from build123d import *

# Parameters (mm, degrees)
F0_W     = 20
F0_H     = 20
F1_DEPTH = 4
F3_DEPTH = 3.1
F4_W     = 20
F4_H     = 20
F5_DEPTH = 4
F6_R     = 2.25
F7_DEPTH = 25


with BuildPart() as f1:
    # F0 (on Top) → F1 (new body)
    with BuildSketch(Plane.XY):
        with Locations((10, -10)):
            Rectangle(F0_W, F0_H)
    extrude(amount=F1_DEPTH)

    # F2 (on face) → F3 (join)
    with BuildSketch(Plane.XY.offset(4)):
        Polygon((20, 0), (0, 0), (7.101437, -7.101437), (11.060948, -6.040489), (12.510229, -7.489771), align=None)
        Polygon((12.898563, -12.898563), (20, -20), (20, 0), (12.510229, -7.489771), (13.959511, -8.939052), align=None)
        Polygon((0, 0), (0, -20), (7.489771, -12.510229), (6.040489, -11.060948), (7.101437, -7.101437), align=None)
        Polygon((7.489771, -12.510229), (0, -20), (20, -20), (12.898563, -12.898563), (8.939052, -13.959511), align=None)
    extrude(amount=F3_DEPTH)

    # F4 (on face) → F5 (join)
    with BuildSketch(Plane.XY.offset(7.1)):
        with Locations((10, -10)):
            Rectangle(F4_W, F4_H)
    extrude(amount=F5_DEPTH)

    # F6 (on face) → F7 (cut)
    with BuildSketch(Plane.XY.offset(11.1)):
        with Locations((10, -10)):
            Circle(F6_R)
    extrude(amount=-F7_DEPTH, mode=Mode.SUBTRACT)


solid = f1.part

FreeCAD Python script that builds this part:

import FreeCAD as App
import Part
import Sketcher
Q = App.Units.Quantity

doc = App.newDocument("Part")
params = doc.addObject("Spreadsheet::Sheet", "Params")
for row, (alias, value) in enumerate([
    ("sketch1_width", "20 mm"),
    ("pad1_length", "4 mm"),
    ("sketch2_width", "20 mm"),
    ("pad2_length", "3.1 mm"),
    ("sketch3_width", "20 mm"),
    ("pad3_length", "4 mm"),
    ("sketch4_diameter", "4.5 mm"),
    ("pocket1_length", "25 mm"),
], start=1):
    params.set(f"A{row}", alias)
    params.set(f"B{row}", "=" + value)
    params.setAlias(f"B{row}", alias)

body = doc.addObject("PartDesign::Body", "Body")

# Sketch on XY plane
sketch1 = body.newObject("Sketcher::SketchObject", "Sketch")
sketch1.AttachmentSupport = (doc.getObject("XY_Plane"), [""])
sketch1.MapMode = "FlatFace"
sketch1.addGeometry([
    Part.LineSegment(App.Vector(0, 0, 0), App.Vector(0, -20, 0)),
    Part.LineSegment(App.Vector(0, -20, 0), App.Vector(20, -20, 0)),
    Part.LineSegment(App.Vector(20, -20, 0), App.Vector(20, 0, 0)),
    Part.LineSegment(App.Vector(20, 0, 0), App.Vector(0, 0, 0)),
], False)
sketch1.addConstraint([
    Sketcher.Constraint("Coincident", 0, 2, 1, 1),
    Sketcher.Constraint("Coincident", 1, 2, 2, 1),
    Sketcher.Constraint("Coincident", 2, 2, 3, 1),
    Sketcher.Constraint("Coincident", 3, 2, 0, 1),
    Sketcher.Constraint("Vertical", 0),
    Sketcher.Constraint("Horizontal", 1),
    Sketcher.Constraint("Vertical", 2),
    Sketcher.Constraint("Horizontal", 3),
    Sketcher.Constraint("Coincident", 3, 2, -1, 1),
    Sketcher.Constraint("Equal", 3, 0),
    Sketcher.Constraint("DistanceX", 1, 1, 1, 2, 20.0),
])
sketch1.setExpression("Constraints[10]", "Params.sketch1_width")
pad1 = body.newObject("PartDesign::Pad", "Pad")
pad1.Profile = sketch1
pad1.setExpression("Length", "Params.pad1_length")

# Sketch on XY plane
sketch2 = body.newObject("Sketcher::SketchObject", "Sketch001")
sketch2.AttachmentSupport = (doc.getObject("XY_Plane"), [""])
sketch2.MapMode = "FlatFace"
sketch2.AttachmentOffset = App.Placement(App.Vector(0, 0, 4), App.Rotation())
sketch2.addGeometry([
    Part.LineSegment(App.Vector(20, 0, 0), App.Vector(0, 0, 0)),  # 0
    Part.LineSegment(App.Vector(0, 0, 0), App.Vector(0, -20, 0)),  # 1
    Part.LineSegment(App.Vector(0, -20, 0), App.Vector(20, -20, 0)),  # 2
    Part.LineSegment(App.Vector(20, -20, 0), App.Vector(20, 0, 0)),  # 3
    Part.LineSegment(App.Vector(7.5, -12.5, 0), App.Vector(6, -11.1, 0)),  # 4
    Part.LineSegment(App.Vector(6, -11.1, 0), App.Vector(7.1, -7.1, 0)),  # 5
    Part.LineSegment(App.Vector(7.1, -7.1, 0), App.Vector(11.1, -6, 0)),  # 6
    Part.LineSegment(App.Vector(11.1, -6, 0), App.Vector(12.5, -7.5, 0)),  # 7
    Part.LineSegment(App.Vector(12.5, -7.5, 0), App.Vector(14, -8.9, 0)),  # 8
    Part.LineSegment(App.Vector(14, -8.9, 0), App.Vector(12.9, -12.9, 0)),  # 9
    Part.LineSegment(App.Vector(12.9, -12.9, 0), App.Vector(8.9, -14, 0)),  # 10
    Part.LineSegment(App.Vector(8.9, -14, 0), App.Vector(7.5, -12.5, 0)),  # 11
], False)
sketch2.addConstraint([
    Sketcher.Constraint("Coincident", 0, 2, 1, 1),
    Sketcher.Constraint("Coincident", 1, 2, 2, 1),
    Sketcher.Constraint("Coincident", 2, 2, 3, 1),
    Sketcher.Constraint("Coincident", 3, 2, 0, 1),
    Sketcher.Constraint("Coincident", 4, 2, 5, 1),
    Sketcher.Constraint("Coincident", 5, 2, 6, 1),
    Sketcher.Constraint("Coincident", 6, 2, 7, 1),
    Sketcher.Constraint("Coincident", 7, 2, 8, 1),
    Sketcher.Constraint("Coincident", 8, 2, 9, 1),
    Sketcher.Constraint("Coincident", 9, 2, 10, 1),
    Sketcher.Constraint("Coincident", 10, 2, 11, 1),
    Sketcher.Constraint("Coincident", 11, 2, 4, 1),
    Sketcher.Constraint("Horizontal", 0),
    Sketcher.Constraint("Vertical", 1),
    Sketcher.Constraint("Horizontal", 2),
    Sketcher.Constraint("Vertical", 3),
    Sketcher.Constraint("Coincident", 0, 2, -1, 1),
    Sketcher.Constraint("Parallel", 4, 7),
    Sketcher.Constraint("Parallel", 7, 8),
    Sketcher.Constraint("Parallel", 5, 9),
    Sketcher.Constraint("Parallel", 6, 10),
    Sketcher.Constraint("Parallel", 8, 11),
    Sketcher.Constraint("Equal", 2, 1),
    Sketcher.Constraint("Equal", 5, 6),
    Sketcher.Constraint("Equal", 4, 7),
    Sketcher.Constraint("Equal", 7, 8),
    Sketcher.Constraint("Equal", 6, 9),
    Sketcher.Constraint("DistanceX", 0, 2, 0, 1, 20.0),
    Sketcher.Constraint("Angle", 4, Q("135.00002 deg")),
    Sketcher.Constraint("Angle", 5, Q("74.999997 deg")),
    Sketcher.Constraint("Angle", 6, Q("15.000003 deg")),
    Sketcher.Constraint("DistanceX", -1, 1, 4, 2, 6.040489),
    Sketcher.Constraint("DistanceY", 6, 2, -1, 1, 6.040489),
    Sketcher.Constraint("DistanceX", -1, 1, 7, 2, 12.510229),
    Sketcher.Constraint("DistanceY", 7, 2, -1, 1, 7.489771),
])
sketch2.setExpression("Constraints[27]", "Params.sketch2_width")
pad2 = body.newObject("PartDesign::Pad", "Pad001")
pad2.Profile = sketch2
pad2.setExpression("Length", "Params.pad2_length")

# Sketch on XY plane
sketch3 = body.newObject("Sketcher::SketchObject", "Sketch002")
sketch3.AttachmentSupport = (doc.getObject("XY_Plane"), [""])
sketch3.MapMode = "FlatFace"
sketch3.AttachmentOffset = App.Placement(App.Vector(0, 0, 7.1), App.Rotation())
sketch3.addGeometry([
    Part.LineSegment(App.Vector(0, 0, 0), App.Vector(0, -20, 0)),
    Part.LineSegment(App.Vector(0, -20, 0), App.Vector(20, -20, 0)),
    Part.LineSegment(App.Vector(20, -20, 0), App.Vector(20, 0, 0)),
    Part.LineSegment(App.Vector(20, 0, 0), App.Vector(0, 0, 0)),
], False)
sketch3.addConstraint([
    Sketcher.Constraint("Coincident", 0, 2, 1, 1),
    Sketcher.Constraint("Coincident", 1, 2, 2, 1),
    Sketcher.Constraint("Coincident", 2, 2, 3, 1),
    Sketcher.Constraint("Coincident", 3, 2, 0, 1),
    Sketcher.Constraint("Vertical", 0),
    Sketcher.Constraint("Horizontal", 1),
    Sketcher.Constraint("Vertical", 2),
    Sketcher.Constraint("Horizontal", 3),
    Sketcher.Constraint("Coincident", 3, 2, -1, 1),
    Sketcher.Constraint("Equal", 3, 0),
    Sketcher.Constraint("DistanceX", 1, 1, 1, 2, 20.0),
])
sketch3.setExpression("Constraints[10]", "Params.sketch3_width")
pad3 = body.newObject("PartDesign::Pad", "Pad002")
pad3.Profile = sketch3
pad3.setExpression("Length", "Params.pad3_length")

# Sketch on XY plane
sketch4 = body.newObject("Sketcher::SketchObject", "Sketch003")
sketch4.AttachmentSupport = (doc.getObject("XY_Plane"), [""])
sketch4.MapMode = "FlatFace"
sketch4.AttachmentOffset = App.Placement(App.Vector(0, 0, 11.1), App.Rotation())
sketch4.addGeometry(Part.Circle(App.Vector(10, -10, 0), App.Vector(0, 0, 1), 2.2), False)
sketch4.addConstraint([
    Sketcher.Constraint("Diameter", 0, 4.5),
    Sketcher.Constraint("DistanceX", -1, 1, 0, 3, 10.0),
    Sketcher.Constraint("DistanceY", 0, 3, -1, 1, 10.0),
])
sketch4.setExpression("Constraints[0]", "Params.sketch4_diameter")
pocket1 = body.newObject("PartDesign::Pocket", "Pocket")
pocket1.Profile = sketch4
pocket1.setExpression("Length", "Params.pocket1_length")

doc.recompute()
